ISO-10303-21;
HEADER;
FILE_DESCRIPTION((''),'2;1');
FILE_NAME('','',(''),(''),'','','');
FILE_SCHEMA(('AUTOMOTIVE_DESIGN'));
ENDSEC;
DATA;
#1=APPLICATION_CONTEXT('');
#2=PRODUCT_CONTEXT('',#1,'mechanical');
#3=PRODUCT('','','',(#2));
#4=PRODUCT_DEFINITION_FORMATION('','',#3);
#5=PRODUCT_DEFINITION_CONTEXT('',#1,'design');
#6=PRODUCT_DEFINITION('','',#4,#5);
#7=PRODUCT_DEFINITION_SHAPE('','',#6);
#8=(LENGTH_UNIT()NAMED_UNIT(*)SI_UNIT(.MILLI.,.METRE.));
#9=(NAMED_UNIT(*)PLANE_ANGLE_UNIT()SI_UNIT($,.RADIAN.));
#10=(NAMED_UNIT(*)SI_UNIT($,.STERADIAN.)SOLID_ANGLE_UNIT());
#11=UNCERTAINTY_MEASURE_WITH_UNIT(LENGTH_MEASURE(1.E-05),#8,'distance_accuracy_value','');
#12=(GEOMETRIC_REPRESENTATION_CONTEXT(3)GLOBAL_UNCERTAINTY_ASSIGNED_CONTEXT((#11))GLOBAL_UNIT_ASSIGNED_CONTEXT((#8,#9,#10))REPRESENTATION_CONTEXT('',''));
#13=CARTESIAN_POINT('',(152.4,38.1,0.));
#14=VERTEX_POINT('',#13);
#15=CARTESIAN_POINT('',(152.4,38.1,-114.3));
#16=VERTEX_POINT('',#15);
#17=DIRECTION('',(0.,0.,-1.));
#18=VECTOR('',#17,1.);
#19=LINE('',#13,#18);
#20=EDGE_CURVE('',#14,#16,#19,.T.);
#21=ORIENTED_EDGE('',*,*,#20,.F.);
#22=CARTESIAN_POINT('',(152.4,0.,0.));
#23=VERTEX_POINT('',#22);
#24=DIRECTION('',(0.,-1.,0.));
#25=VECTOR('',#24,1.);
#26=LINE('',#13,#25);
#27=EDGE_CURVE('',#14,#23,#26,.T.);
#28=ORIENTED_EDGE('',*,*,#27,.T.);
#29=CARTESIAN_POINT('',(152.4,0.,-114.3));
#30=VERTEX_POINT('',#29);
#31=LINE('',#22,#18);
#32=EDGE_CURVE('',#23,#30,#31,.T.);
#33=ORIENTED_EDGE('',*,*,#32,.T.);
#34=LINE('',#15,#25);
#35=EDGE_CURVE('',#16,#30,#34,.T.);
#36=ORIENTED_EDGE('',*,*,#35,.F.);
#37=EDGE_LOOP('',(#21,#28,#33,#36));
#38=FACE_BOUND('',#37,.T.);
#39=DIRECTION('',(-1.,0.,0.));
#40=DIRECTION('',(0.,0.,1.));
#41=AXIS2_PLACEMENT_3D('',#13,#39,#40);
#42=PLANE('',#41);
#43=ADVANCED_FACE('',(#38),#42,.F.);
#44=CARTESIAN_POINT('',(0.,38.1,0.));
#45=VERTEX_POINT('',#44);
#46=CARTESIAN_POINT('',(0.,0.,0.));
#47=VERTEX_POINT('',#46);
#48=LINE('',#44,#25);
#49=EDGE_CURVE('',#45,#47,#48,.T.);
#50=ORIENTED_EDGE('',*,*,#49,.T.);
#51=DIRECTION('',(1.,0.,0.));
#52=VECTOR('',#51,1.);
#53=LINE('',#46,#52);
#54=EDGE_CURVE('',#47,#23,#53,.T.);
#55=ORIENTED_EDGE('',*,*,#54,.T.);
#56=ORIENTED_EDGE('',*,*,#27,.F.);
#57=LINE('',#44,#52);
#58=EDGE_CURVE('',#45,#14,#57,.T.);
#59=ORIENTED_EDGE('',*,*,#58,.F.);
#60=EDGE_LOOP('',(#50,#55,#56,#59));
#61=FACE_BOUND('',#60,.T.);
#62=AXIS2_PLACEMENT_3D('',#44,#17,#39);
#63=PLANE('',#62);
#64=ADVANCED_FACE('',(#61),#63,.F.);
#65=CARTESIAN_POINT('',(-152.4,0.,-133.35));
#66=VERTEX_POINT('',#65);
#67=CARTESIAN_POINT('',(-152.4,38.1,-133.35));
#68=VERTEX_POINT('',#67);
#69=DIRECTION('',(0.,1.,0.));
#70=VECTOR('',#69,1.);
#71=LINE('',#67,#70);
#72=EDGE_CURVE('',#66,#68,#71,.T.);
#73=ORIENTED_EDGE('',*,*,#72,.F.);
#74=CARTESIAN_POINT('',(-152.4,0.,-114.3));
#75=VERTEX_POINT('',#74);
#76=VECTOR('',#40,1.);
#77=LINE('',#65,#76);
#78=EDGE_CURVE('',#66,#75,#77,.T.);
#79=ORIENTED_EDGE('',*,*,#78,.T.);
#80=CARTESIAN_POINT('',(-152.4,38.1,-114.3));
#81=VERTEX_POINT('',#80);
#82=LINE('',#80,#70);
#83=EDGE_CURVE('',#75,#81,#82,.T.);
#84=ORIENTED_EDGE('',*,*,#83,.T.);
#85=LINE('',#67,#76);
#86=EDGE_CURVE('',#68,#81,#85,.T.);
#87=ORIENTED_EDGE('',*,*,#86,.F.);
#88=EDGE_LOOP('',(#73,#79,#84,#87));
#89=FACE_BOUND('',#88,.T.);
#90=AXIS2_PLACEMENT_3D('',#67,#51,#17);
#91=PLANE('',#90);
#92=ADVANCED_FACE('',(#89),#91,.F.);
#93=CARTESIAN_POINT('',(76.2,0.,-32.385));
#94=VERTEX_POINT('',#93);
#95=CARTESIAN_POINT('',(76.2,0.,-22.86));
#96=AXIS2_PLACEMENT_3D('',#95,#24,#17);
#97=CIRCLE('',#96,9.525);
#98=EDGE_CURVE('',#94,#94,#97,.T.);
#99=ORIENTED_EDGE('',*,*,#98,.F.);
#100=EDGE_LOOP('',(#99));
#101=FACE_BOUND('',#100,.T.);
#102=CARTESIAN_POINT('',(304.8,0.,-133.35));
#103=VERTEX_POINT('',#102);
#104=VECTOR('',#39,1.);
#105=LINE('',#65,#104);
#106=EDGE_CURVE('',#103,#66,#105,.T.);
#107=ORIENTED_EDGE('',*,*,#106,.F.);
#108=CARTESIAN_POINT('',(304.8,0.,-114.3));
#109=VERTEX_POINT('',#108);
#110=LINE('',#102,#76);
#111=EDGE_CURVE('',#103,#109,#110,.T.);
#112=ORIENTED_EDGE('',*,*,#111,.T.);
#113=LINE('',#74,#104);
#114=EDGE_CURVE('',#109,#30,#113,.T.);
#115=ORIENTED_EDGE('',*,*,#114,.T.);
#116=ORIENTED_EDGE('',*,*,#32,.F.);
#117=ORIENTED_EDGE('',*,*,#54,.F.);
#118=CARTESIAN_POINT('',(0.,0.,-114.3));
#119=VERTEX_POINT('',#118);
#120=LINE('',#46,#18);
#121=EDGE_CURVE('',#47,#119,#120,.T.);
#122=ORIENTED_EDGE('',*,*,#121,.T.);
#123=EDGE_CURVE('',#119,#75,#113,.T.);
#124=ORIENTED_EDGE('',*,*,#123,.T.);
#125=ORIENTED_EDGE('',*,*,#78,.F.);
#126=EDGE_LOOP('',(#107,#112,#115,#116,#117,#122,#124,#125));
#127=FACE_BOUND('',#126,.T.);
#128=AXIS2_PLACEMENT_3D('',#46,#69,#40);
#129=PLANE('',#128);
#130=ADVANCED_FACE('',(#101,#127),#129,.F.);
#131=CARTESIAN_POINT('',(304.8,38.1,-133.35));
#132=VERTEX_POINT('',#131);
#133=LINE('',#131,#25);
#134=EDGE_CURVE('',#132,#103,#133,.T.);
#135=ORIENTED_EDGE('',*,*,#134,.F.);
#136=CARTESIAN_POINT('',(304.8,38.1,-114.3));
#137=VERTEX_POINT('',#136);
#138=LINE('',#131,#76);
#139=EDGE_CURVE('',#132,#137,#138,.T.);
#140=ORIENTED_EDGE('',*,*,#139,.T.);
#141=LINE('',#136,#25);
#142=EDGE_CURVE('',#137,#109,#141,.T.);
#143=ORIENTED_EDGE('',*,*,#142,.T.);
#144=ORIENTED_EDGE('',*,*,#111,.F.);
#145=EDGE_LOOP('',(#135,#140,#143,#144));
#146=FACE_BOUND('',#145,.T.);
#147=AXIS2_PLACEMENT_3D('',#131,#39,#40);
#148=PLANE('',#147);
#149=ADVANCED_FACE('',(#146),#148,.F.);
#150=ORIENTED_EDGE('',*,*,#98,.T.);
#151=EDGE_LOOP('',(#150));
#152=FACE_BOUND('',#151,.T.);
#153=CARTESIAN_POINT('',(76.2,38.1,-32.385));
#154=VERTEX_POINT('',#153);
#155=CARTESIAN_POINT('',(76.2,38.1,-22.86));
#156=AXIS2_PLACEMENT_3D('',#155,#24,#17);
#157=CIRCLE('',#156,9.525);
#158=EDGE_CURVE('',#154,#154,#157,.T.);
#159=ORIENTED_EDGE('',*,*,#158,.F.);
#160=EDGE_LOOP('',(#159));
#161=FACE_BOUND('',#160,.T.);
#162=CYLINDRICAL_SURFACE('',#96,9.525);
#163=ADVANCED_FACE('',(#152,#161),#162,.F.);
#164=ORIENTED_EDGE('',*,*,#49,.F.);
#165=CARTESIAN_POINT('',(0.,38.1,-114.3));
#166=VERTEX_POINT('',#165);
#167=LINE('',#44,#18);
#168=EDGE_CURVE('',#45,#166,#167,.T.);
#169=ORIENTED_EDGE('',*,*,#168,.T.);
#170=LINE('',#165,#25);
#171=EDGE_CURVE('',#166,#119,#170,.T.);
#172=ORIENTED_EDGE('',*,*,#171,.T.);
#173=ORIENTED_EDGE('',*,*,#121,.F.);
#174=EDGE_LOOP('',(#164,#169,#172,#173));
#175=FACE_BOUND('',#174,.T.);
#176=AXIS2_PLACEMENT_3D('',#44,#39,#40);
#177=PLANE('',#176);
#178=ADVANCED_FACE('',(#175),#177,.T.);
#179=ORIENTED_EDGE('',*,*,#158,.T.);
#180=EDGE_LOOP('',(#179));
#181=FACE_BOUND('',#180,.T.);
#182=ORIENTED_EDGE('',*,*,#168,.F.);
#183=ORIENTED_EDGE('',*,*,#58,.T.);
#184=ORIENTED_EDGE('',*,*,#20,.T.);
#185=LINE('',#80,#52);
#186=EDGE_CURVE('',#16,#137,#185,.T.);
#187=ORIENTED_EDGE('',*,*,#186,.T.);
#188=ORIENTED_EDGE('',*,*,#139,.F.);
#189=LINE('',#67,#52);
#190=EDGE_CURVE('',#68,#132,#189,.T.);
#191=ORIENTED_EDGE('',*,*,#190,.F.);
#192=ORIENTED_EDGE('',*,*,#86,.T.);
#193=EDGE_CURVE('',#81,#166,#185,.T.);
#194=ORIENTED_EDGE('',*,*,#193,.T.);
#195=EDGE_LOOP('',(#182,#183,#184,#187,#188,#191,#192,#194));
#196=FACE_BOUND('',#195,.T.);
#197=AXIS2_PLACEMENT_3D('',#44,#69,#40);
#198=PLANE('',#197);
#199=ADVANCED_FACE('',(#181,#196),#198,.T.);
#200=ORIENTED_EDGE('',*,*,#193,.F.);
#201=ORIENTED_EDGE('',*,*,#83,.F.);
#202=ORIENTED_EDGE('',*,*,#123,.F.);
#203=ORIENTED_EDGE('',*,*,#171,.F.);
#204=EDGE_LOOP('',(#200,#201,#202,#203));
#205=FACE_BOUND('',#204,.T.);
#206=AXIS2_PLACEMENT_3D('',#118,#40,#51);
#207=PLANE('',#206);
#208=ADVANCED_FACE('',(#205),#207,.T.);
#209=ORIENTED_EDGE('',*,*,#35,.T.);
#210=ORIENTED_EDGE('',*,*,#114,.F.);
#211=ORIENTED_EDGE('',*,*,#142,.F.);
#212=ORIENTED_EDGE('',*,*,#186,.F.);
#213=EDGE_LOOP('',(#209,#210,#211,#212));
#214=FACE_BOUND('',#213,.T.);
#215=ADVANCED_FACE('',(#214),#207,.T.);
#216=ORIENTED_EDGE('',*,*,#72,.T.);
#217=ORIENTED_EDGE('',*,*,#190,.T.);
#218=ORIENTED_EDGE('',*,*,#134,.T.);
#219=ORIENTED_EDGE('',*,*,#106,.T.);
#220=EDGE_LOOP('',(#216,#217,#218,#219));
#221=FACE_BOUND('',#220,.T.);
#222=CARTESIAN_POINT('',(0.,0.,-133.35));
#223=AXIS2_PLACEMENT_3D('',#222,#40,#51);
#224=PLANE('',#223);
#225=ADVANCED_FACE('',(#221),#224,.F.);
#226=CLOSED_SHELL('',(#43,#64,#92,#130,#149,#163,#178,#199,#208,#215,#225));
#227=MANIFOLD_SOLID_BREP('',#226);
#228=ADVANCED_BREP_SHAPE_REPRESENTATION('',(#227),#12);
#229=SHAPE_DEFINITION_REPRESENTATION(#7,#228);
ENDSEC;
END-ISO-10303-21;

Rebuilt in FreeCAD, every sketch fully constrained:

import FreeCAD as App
import Part
import Sketcher
Q = App.Units.Quantity


def add_polygon(sketch, points):
    """Adds a closed chain of lines whose ends are joined by coincident constraints."""
    first, n = sketch.GeometryCount, len(points)
    for a, b in zip(points, points[1:] + points[:1]):
        sketch.addGeometry(Part.LineSegment(App.Vector(*a, 0), App.Vector(*b, 0)), False)
    for i in range(n):
        sketch.addConstraint(Sketcher.Constraint("Coincident", first + i, 2, first + (i + 1) % n, 1))

doc = App.newDocument("Part")
body = doc.addObject("PartDesign::Body", "Body")

# Sketch on XZ plane
sketch1 = body.newObject("Sketcher::SketchObject", "Sketch")
sketch1.AttachmentSupport = (doc.getObject("XZ_Plane"), [""])
sketch1.MapMode = "FlatFace"
add_polygon(sketch1, [(0, -114), (0, 0), (152, 0), (152, -114)])  # lines 0-3
sketch1.addConstraint(Sketcher.Constraint("Vertical", 0))
sketch1.addConstraint(Sketcher.Constraint("Horizontal", 1))
sketch1.addConstraint(Sketcher.Constraint("Vertical", 2))
sketch1.addConstraint(Sketcher.Constraint("Horizontal", 3))
sketch1.addConstraint(Sketcher.Constraint("Coincident", 0, 2, -1, 1))
sketch1.addConstraint(Sketcher.Constraint("DistanceX", 1, 1, 1, 2, Q("6 in")))
sketch1.addConstraint(Sketcher.Constraint("DistanceY", 0, 1, 0, 2, Q("4.5 in")))
pad1 = body.newObject("PartDesign::Pad", "Pad")
pad1.Profile = sketch1
pad1.Length = Q("1.5 in")
pad1.Reversed = True

# Sketch on XY plane
sketch2 = body.newObject("Sketcher::SketchObject", "Sketch001")
sketch2.AttachmentSupport = (doc.getObject("XY_Plane"), [""])
sketch2.MapMode = "FlatFace"
sketch2.AttachmentOffset = App.Placement(App.Vector(0, 0, -4.5 * 25.4), App.Rotation())
add_polygon(sketch2, [(305, 38), (305, 0), (-152, 0), (-152, 38)])  # lines 0-3
sketch2.addConstraint(Sketcher.Constraint("Vertical", 0))
sketch2.addConstraint(Sketcher.Constraint("Horizontal", 1))
sketch2.addConstraint(Sketcher.Constraint("Vertical", 2))
sketch2.addConstraint(Sketcher.Constraint("Horizontal", 3))
sketch2.addConstraint(Sketcher.Constraint("PointOnObject", 0, 2, -1))
sketch2.addConstraint(Sketcher.Constraint("DistanceX", 1, 2, 1, 1, Q("18 in")))
sketch2.addConstraint(Sketcher.Constraint("DistanceY", 0, 2, 0, 1, Q("1.5 in")))
sketch2.addConstraint(Sketcher.Constraint("DistanceX", -1, 1, 0, 2, Q("12 in")))
pad2 = body.newObject("PartDesign::Pad", "Pad001")
pad2.Profile = sketch2
pad2.Length = Q("0.75 in")
pad2.Reversed = True

# Sketch on XZ plane
sketch3 = body.newObject("Sketcher::SketchObject", "Sketch002")
sketch3.AttachmentSupport = (doc.getObject("XZ_Plane"), [""])
sketch3.MapMode = "FlatFace"
sketch3.addGeometry(Part.Circle(App.Vector(76, -23, 0), App.Vector(0, 0, 1), 10), False)
sketch3.addConstraint(Sketcher.Constraint("Diameter", 0, Q("0.75 in")))
sketch3.addConstraint(Sketcher.Constraint("DistanceX", -1, 1, 0, 3, Q("3 in")))
sketch3.addConstraint(Sketcher.Constraint("DistanceY", 0, 3, -1, 1, Q("0.9 in")))
doc.recompute()
hole = body.newObject("PartDesign::Hole", "Hole")
hole.Profile = sketch3
hole.ThreadType = "None"
hole.Diameter = Q("0.75 in")
hole.DepthType = "ThroughAll"

doc.recompute()
